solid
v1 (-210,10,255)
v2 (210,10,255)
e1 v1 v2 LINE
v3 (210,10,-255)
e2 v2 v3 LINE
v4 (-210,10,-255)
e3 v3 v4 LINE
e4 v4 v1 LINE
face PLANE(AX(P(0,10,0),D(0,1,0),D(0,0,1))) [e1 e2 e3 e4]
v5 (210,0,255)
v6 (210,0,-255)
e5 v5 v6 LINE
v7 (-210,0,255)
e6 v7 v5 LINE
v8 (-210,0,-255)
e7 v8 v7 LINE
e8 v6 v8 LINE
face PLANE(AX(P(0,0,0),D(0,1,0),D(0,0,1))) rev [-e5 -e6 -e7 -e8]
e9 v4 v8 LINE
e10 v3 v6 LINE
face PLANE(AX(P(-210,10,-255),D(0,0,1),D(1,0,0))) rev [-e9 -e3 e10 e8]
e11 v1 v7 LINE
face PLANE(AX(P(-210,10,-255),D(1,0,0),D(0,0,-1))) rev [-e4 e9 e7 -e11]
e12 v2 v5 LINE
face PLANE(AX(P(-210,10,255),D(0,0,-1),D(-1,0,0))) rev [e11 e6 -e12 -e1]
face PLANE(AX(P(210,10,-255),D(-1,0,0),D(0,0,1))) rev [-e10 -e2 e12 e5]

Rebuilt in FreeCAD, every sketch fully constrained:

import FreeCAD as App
import Part
import Sketcher

V = App.Vector
Q = App.Units.Quantity

doc = App.newDocument("Part")
body = doc.addObject("PartDesign::Body", "Body")

# Sketch on XZ plane
sketch1 = body.newObject("Sketcher::SketchObject", "Sketch")
sketch1.AttachmentSupport = (doc.getObject("XZ_Plane"), [""])
sketch1.MapMode = "FlatFace"
sketch1.addGeometry([
    Part.LineSegment(V(-210, -255, 0), V(-210, 255, 0)),
    Part.LineSegment(V(-210, 255, 0), V(210, 255, 0)),
    Part.LineSegment(V(210, 255, 0), V(210, -255, 0)),
    Part.LineSegment(V(210, -255, 0), V(-210, -255, 0)),
], False)
sketch1.addConstraint([
    Sketcher.Constraint("Coincident", 0, 2, 1, 1),
    Sketcher.Constraint("Coincident", 1, 2, 2, 1),
    Sketcher.Constraint("Coincident", 2, 2, 3, 1),
    Sketcher.Constraint("Coincident", 3, 2, 0, 1),
    Sketcher.Constraint("Vertical", 0),
    Sketcher.Constraint("Horizontal", 1),
    Sketcher.Constraint("Vertical", 2),
    Sketcher.Constraint("Horizontal", 3),
    Sketcher.Constraint("Symmetric", 0, 2, 2, 2, -1, 1),
    Sketcher.Constraint("DistanceX", 1, 1, 1, 2, Q("420 mm")),
    Sketcher.Constraint("DistanceY", 0, 1, 0, 2, Q("510 mm")),
])
pad1 = body.newObject("PartDesign::Pad", "Pad")
pad1.Profile = sketch1
pad1.Length = 10
pad1.Reversed = True

doc.recompute()
